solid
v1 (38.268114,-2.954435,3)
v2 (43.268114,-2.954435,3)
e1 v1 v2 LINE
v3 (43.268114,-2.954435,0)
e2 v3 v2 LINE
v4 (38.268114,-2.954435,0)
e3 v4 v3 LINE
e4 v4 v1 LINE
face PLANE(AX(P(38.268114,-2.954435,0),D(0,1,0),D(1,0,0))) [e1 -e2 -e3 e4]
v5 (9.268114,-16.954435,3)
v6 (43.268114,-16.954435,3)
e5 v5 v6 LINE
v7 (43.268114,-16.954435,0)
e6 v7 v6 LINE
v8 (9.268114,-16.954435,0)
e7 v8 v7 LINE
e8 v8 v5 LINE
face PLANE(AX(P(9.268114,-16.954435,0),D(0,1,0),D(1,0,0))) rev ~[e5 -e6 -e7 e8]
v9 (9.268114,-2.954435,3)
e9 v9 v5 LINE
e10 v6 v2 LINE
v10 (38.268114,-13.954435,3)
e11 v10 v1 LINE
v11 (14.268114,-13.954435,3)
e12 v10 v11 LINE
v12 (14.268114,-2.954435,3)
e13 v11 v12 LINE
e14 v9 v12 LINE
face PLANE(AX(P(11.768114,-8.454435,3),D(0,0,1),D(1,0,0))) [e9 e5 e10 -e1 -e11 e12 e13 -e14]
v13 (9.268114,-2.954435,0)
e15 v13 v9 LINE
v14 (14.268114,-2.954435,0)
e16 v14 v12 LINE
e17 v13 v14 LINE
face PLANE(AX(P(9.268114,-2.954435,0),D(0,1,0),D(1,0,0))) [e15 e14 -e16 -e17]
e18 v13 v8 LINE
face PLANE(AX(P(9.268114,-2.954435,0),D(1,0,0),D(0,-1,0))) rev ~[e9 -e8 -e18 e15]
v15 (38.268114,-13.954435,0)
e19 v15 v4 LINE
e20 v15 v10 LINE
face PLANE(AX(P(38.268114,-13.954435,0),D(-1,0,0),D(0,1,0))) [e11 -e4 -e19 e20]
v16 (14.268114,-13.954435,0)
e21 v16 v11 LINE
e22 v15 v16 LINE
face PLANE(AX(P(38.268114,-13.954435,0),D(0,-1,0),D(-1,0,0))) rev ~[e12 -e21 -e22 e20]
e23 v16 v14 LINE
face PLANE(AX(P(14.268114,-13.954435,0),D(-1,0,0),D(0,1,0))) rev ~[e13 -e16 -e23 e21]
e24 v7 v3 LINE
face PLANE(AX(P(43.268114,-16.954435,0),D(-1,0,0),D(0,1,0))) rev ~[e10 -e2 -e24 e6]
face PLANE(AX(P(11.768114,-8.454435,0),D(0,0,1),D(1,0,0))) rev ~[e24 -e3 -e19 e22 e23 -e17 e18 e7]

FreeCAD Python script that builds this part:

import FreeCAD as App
import Part
import Sketcher
Q = App.Units.Quantity


def add_polygon(sketch, points):
    """Adds a closed chain of lines whose ends are joined by coincident constraints."""
    first, n = sketch.GeometryCount, len(points)
    for a, b in zip(points, points[1:] + points[:1]):
        sketch.addGeometry(Part.LineSegment(App.Vector(*a, 0), App.Vector(*b, 0)), False)
    for i in range(n):
        sketch.addConstraint(Sketcher.Constraint("Coincident", first + i, 2, first + (i + 1) % n, 1))

doc = App.newDocument("Part")
params = doc.addObject("Spreadsheet::Sheet", "Params")
for row, (alias, value) in enumerate([
    ("sketch1_width", "34 mm"),
    ("sketch1_width2", "5 mm"),
    ("sketch1_height", "14 mm"),
    ("sketch1_height2", "11 mm"),
    ("pad1_length", "3 mm"),
], start=1):
    params.set(f"A{row}", alias)
    params.set(f"B{row}", "=" + value)
    params.setAlias(f"B{row}", alias)

body = doc.addObject("PartDesign::Body", "Body")

# Sketch on XY plane
sketch1 = body.newObject("Sketcher::SketchObject", "Sketch")
sketch1.AttachmentSupport = (doc.getObject("XY_Plane"), [""])
sketch1.MapMode = "FlatFace"
add_polygon(sketch1, [(9, -3), (9, -17), (43, -17), (43, -3), (38, -3), (38, -14), (14, -14), (14, -3)])  # lines 0-7
sketch1.addConstraint([
    Sketcher.Constraint("Vertical", 0),
    Sketcher.Constraint("Horizontal", 1),
    Sketcher.Constraint("Vertical", 2),
    Sketcher.Constraint("Horizontal", 3),
    Sketcher.Constraint("Vertical", 4),
    Sketcher.Constraint("Horizontal", 5),
    Sketcher.Constraint("Vertical", 6),
    Sketcher.Constraint("Horizontal", 7),
    Sketcher.Constraint("Horizontal", 3, 2, 6, 2),
    Sketcher.Constraint("Equal", 3, 7),
    Sketcher.Constraint("DistanceX", 1, 1, 1, 2, Q("34 mm")),
    Sketcher.Constraint("DistanceX", 3, 2, 3, 1, Q("5 mm")),
    Sketcher.Constraint("DistanceY", 0, 2, 0, 1, Q("14 mm")),
    Sketcher.Constraint("DistanceY", 4, 2, 4, 1, Q("11 mm")),
    Sketcher.Constraint("DistanceX", -1, 1, 0, 2, Q("9.268114 mm")),
    Sketcher.Constraint("DistanceY", 0, 2, -1, 1, Q("16.954435 mm")),
])
sketch1.setExpression("Constraints[18]", "Params.sketch1_width")
sketch1.setExpression("Constraints[19]", "Params.sketch1_width2")
sketch1.setExpression("Constraints[20]", "Params.sketch1_height")
sketch1.setExpression("Constraints[21]", "Params.sketch1_height2")
pad1 = body.newObject("PartDesign::Pad", "Pad")
pad1.Profile = sketch1
pad1.setExpression("Length", "Params.pad1_length")

doc.recompute()
